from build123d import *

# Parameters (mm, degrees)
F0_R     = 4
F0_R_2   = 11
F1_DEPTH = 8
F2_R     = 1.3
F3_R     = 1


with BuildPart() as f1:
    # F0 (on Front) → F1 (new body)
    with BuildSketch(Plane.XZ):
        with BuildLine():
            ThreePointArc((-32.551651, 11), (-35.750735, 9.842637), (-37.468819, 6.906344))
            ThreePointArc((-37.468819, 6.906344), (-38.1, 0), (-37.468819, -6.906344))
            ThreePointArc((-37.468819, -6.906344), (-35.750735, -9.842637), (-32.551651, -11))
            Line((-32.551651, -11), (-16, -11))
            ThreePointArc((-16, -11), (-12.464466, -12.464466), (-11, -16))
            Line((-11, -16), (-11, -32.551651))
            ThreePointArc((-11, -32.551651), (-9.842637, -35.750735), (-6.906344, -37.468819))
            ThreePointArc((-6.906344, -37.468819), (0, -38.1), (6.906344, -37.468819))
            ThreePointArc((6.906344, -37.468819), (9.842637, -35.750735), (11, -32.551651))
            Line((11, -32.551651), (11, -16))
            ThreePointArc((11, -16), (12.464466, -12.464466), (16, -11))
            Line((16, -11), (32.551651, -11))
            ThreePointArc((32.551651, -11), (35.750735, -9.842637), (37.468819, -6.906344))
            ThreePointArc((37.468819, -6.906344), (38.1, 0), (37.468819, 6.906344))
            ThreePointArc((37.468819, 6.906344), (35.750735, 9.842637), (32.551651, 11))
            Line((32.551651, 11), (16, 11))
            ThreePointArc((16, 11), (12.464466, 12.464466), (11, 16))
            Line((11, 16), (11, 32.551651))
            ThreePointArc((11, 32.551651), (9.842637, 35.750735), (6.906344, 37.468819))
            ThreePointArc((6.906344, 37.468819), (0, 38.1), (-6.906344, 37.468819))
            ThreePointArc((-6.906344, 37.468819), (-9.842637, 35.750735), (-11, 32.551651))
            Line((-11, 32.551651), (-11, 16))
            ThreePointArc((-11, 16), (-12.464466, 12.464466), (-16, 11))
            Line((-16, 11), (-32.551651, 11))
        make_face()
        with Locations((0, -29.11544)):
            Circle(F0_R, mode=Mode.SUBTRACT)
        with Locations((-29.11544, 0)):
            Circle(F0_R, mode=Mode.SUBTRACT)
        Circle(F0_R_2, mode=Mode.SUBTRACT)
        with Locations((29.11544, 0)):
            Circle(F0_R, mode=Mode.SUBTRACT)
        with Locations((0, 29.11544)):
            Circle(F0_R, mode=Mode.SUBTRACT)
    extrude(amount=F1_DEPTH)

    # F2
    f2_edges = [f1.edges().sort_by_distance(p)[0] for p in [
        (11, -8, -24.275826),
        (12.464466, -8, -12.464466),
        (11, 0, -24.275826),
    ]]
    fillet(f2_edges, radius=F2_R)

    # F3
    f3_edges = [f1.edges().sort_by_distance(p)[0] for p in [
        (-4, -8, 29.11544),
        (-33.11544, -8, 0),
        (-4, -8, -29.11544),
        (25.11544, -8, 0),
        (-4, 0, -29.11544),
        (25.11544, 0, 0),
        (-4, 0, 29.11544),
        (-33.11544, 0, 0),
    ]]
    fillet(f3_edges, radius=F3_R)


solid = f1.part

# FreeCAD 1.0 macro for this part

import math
import FreeCAD as App
import Part
import Sketcher

V = App.Vector


def edges_at(feature, points):
    """Names of the edges that pass closest to the given points."""
    edges = feature.Shape.Edges
    near = lambda p: min(range(len(edges)), key=lambda i: edges[i].distToShape(Part.Vertex(*p))[0])
    return sorted({f"Edge{near(p) + 1}" for p in points})

doc = App.newDocument("Part")
body = doc.addObject("PartDesign::Body", "Body")

sketch1 = doc.addObject("Sketcher::SketchObject", "Sketch")
body.addObject(sketch1)
sketch1.AttachmentSupport = (doc.XZ_Plane, [""])
sketch1.MapMode = "FlatFace"
sketch1.addGeometry([
    Part.ArcOfCircle(Part.Circle(V(-32.55165, 5.999999, 0), V(0, 0, 1), 5.000001), math.radians(90.000008), math.radians(169.556319)),
    Part.ArcOfCircle(Part.Circle(V(-0.000012, 0, 0), V(0, 0, 1), 38.099988), math.radians(169.55632), math.radians(190.44368)),
    Part.ArcOfCircle(Part.Circle(V(-32.55165, -5.999999, 0), V(0, 0, 1), 5.000001), math.radians(-169.556319), math.radians(-90.000008)),
    Part.LineSegment(V(-32.551651, -11, 0), V(-16, -11, 0)),
    Part.ArcOfCircle(Part.Circle(V(-16, -16, 0), V(0, 0, 1), 5), math.radians(-0.000004), math.radians(90.000004)),
    Part.LineSegment(V(-11, -16, 0), V(-11, -32.551651, 0)),
    Part.ArcOfCircle(Part.Circle(V(-5.999999, -32.55165, 0), V(0, 0, 1), 5.000001), math.radians(-179.999992), math.radians(-100.443681)),
    Part.ArcOfCircle(Part.Circle(V(0, -0.000012, 0), V(0, 0, 1), 38.099988), math.radians(-100.44368), math.radians(-79.55632)),
    Part.ArcOfCircle(Part.Circle(V(5.999999, -32.55165, 0), V(0, 0, 1), 5.000001), math.radians(-79.556319), math.radians(-0.000008)),
    Part.LineSegment(V(11, -32.551651, 0), V(11, -16, 0)),
    Part.ArcOfCircle(Part.Circle(V(16, -16, 0), V(0, 0, 1), 5), math.radians(89.999996), math.radians(180.000004)),
    Part.LineSegment(V(16, -11, 0), V(32.551651, -11, 0)),
    Part.ArcOfCircle(Part.Circle(V(32.55165, -5.999999, 0), V(0, 0, 1), 5.000001), math.radians(-89.999992), math.radians(-10.443681)),
    Part.ArcOfCircle(Part.Circle(V(0.000012, 0, 0), V(0, 0, 1), 38.099988), math.radians(-10.44368), math.radians(10.44368)),
    Part.ArcOfCircle(Part.Circle(V(32.55165, 5.999999, 0), V(0, 0, 1), 5.000001), math.radians(10.443681), math.radians(89.999992)),
    Part.LineSegment(V(32.551651, 11, 0), V(16, 11, 0)),
    Part.ArcOfCircle(Part.Circle(V(16, 16, 0), V(0, 0, 1), 5), math.radians(179.999996), math.radians(270.000004)),
    Part.LineSegment(V(11, 16, 0), V(11, 32.551651, 0)),
    Part.ArcOfCircle(Part.Circle(V(5.999999, 32.55165, 0), V(0, 0, 1), 5.000001), math.radians(0.000008), math.radians(79.556319)),
    Part.ArcOfCircle(Part.Circle(V(0, 0.000012, 0), V(0, 0, 1), 38.099988), math.radians(79.55632), math.radians(100.44368)),
    Part.ArcOfCircle(Part.Circle(V(-5.999999, 32.55165, 0), V(0, 0, 1), 5.000001), math.radians(100.443681), math.radians(179.999992)),
    Part.LineSegment(V(-11, 32.551651, 0), V(-11, 16, 0)),
    Part.ArcOfCircle(Part.Circle(V(-16, 16, 0), V(0, 0, 1), 5), math.radians(-90.000004), math.radians(0.000004)),
    Part.LineSegment(V(-16, 11, 0), V(-32.551651, 11, 0)),
    Part.Circle(V(0, -29.11544, 0), V(0, 0, 1), 4),
    Part.Circle(V(-29.11544, 0, 0), V(0, 0, 1), 4),
    Part.Circle(V(0, 0, 0), V(0, 0, 1), 11),
    Part.Circle(V(29.11544, 0, 0), V(0, 0, 1), 4),
    Part.Circle(V(0, 29.11544, 0), V(0, 0, 1), 4),
], False)
sketch1.addConstraint([
    Sketcher.Constraint("Tangent", 0, 2, 1, 1),
    Sketcher.Constraint("Tangent", 1, 2, 2, 1),
    Sketcher.Constraint("Tangent", 2, 2, 3, 1),
    Sketcher.Constraint("Tangent", 3, 2, 4, 2),
    Sketcher.Constraint("Tangent", 4, 1, 5, 1),
    Sketcher.Constraint("Tangent", 5, 2, 6, 1),
    Sketcher.Constraint("Tangent", 6, 2, 7, 1),
    Sketcher.Constraint("Tangent", 7, 2, 8, 1),
    Sketcher.Constraint("Tangent", 8, 2, 9, 1),
    Sketcher.Constraint("Tangent", 9, 2, 10, 2),
    Sketcher.Constraint("Tangent", 10, 1, 11, 1),
    Sketcher.Constraint("Tangent", 11, 2, 12, 1),
    Sketcher.Constraint("Tangent", 12, 2, 13, 1),
    Sketcher.Constraint("Tangent", 13, 2, 14, 1),
    Sketcher.Constraint("Tangent", 14, 2, 15, 1),
    Sketcher.Constraint("Tangent", 15, 2, 16, 2),
    Sketcher.Constraint("Tangent", 16, 1, 17, 1),
    Sketcher.Constraint("Tangent", 17, 2, 18, 1),
    Sketcher.Constraint("Tangent", 18, 2, 19, 1),
    Sketcher.Constraint("Tangent", 19, 2, 20, 1),
    Sketcher.Constraint("Tangent", 20, 2, 21, 1),
    Sketcher.Constraint("Tangent", 21, 2, 22, 2),
    Sketcher.Constraint("Tangent", 22, 1, 23, 1),
    Sketcher.Constraint("Tangent", 23, 2, 0, 1),
    Sketcher.Constraint("Horizontal", 3),
    Sketcher.Constraint("Vertical", 5),
    Sketcher.Constraint("Vertical", 9),
    Sketcher.Constraint("Horizontal", 11),
    Sketcher.Constraint("Horizontal", 15),
    Sketcher.Constraint("Vertical", 17),
    Sketcher.Constraint("Vertical", 21),
    Sketcher.Constraint("Horizontal", 23),
    Sketcher.Constraint("Coincident", 26, 3, -1, 1),
    Sketcher.Constraint("Equal", 0, 2),
    Sketcher.Constraint("Equal", 2, 4),
    Sketcher.Constraint("Equal", 4, 6),
    Sketcher.Constraint("Equal", 1, 7),
    Sketcher.Constraint("Equal", 6, 8),
    Sketcher.Constraint("Equal", 8, 10),
    Sketcher.Constraint("Equal", 10, 12),
    Sketcher.Constraint("Equal", 7, 13),
    Sketcher.Constraint("Equal", 12, 14),
    Sketcher.Constraint("Equal", 14, 16),
    Sketcher.Constraint("Equal", 16, 18),
    Sketcher.Constraint("Equal", 13, 19),
    Sketcher.Constraint("Equal", 18, 20),
    Sketcher.Constraint("Equal", 20, 22),
    Sketcher.Constraint("Equal", 24, 25),
    Sketcher.Constraint("Equal", 25, 27),
    Sketcher.Constraint("Equal", 27, 28),
    Sketcher.Constraint("Symmetric", 0, 3, 12, 3, -1, 1),
    Sketcher.Constraint("Symmetric", 2, 3, 14, 3, -1, 1),
    Sketcher.Constraint("Symmetric", 6, 3, 18, 3, -1, 1),
    Sketcher.Constraint("Symmetric", 8, 3, 20, 3, -1, 1),
    Sketcher.Constraint("Symmetric", 25, 3, 27, 3, -1, 1),
    Sketcher.Constraint("Symmetric", 24, 3, 28, 3, -1, 1),
    Sketcher.Constraint("Symmetric", 6, 3, 8, 3, -2),
    Sketcher.Constraint("Symmetric", 2, 3, 12, 3, -2),
    Sketcher.Constraint("PointOnObject", 24, 3, -2),
    Sketcher.Constraint("PointOnObject", 25, 3, -1),
    Sketcher.Constraint("Equal", 23, 5),
    Sketcher.Constraint("Diameter", 24, 8.0),
    Sketcher.Constraint("Diameter", 26, 22.0),
    Sketcher.Constraint("Radius", 0, 5.000001),
    Sketcher.Constraint("DistanceY", -1, 1, 0, 3, 5.999999),
    Sketcher.Constraint("DistanceX", 4, 3, -1, 1, 16.0),
    Sketcher.Constraint("Radius", 1, 38.099988),
    Sketcher.Constraint("DistanceX", 3, 1, 3, 2, 16.551651),
    Sketcher.Constraint("DistanceY", 24, 3, -1, 1, 29.11544),
    Sketcher.Constraint("DistanceX", 25, 3, -1, 1, 29.11544),
])
pad1 = doc.addObject("PartDesign::Pad", "Pad")
body.addObject(pad1)
pad1.Profile = sketch1
pad1.Length = 8
doc.recompute()

fillet = doc.addObject("PartDesign::Fillet", "Fillet")
body.addObject(fillet)
fillet.Base = (pad1, edges_at(pad1, [(11, -8, -24.276), (12.464, -8, -12.464), (11, 0, -24.276)]))
fillet.Radius = 1.3
doc.recompute()

fillet2 = doc.addObject("PartDesign::Fillet", "Fillet001")
body.addObject(fillet2)
fillet2.Base = (fillet, edges_at(fillet, [
    (-4, -8, 29.115),
    (-33.115, -8, 0),
    (-4, -8, -29.115),
    (25.115, -8, 0),
    (-4, 0, -29.115),
    (25.115, 0, 0),
    (-4, 0, 29.115),
    (-33.115, 0, 0),
]))
fillet2.Radius = 1

doc.recompute()
